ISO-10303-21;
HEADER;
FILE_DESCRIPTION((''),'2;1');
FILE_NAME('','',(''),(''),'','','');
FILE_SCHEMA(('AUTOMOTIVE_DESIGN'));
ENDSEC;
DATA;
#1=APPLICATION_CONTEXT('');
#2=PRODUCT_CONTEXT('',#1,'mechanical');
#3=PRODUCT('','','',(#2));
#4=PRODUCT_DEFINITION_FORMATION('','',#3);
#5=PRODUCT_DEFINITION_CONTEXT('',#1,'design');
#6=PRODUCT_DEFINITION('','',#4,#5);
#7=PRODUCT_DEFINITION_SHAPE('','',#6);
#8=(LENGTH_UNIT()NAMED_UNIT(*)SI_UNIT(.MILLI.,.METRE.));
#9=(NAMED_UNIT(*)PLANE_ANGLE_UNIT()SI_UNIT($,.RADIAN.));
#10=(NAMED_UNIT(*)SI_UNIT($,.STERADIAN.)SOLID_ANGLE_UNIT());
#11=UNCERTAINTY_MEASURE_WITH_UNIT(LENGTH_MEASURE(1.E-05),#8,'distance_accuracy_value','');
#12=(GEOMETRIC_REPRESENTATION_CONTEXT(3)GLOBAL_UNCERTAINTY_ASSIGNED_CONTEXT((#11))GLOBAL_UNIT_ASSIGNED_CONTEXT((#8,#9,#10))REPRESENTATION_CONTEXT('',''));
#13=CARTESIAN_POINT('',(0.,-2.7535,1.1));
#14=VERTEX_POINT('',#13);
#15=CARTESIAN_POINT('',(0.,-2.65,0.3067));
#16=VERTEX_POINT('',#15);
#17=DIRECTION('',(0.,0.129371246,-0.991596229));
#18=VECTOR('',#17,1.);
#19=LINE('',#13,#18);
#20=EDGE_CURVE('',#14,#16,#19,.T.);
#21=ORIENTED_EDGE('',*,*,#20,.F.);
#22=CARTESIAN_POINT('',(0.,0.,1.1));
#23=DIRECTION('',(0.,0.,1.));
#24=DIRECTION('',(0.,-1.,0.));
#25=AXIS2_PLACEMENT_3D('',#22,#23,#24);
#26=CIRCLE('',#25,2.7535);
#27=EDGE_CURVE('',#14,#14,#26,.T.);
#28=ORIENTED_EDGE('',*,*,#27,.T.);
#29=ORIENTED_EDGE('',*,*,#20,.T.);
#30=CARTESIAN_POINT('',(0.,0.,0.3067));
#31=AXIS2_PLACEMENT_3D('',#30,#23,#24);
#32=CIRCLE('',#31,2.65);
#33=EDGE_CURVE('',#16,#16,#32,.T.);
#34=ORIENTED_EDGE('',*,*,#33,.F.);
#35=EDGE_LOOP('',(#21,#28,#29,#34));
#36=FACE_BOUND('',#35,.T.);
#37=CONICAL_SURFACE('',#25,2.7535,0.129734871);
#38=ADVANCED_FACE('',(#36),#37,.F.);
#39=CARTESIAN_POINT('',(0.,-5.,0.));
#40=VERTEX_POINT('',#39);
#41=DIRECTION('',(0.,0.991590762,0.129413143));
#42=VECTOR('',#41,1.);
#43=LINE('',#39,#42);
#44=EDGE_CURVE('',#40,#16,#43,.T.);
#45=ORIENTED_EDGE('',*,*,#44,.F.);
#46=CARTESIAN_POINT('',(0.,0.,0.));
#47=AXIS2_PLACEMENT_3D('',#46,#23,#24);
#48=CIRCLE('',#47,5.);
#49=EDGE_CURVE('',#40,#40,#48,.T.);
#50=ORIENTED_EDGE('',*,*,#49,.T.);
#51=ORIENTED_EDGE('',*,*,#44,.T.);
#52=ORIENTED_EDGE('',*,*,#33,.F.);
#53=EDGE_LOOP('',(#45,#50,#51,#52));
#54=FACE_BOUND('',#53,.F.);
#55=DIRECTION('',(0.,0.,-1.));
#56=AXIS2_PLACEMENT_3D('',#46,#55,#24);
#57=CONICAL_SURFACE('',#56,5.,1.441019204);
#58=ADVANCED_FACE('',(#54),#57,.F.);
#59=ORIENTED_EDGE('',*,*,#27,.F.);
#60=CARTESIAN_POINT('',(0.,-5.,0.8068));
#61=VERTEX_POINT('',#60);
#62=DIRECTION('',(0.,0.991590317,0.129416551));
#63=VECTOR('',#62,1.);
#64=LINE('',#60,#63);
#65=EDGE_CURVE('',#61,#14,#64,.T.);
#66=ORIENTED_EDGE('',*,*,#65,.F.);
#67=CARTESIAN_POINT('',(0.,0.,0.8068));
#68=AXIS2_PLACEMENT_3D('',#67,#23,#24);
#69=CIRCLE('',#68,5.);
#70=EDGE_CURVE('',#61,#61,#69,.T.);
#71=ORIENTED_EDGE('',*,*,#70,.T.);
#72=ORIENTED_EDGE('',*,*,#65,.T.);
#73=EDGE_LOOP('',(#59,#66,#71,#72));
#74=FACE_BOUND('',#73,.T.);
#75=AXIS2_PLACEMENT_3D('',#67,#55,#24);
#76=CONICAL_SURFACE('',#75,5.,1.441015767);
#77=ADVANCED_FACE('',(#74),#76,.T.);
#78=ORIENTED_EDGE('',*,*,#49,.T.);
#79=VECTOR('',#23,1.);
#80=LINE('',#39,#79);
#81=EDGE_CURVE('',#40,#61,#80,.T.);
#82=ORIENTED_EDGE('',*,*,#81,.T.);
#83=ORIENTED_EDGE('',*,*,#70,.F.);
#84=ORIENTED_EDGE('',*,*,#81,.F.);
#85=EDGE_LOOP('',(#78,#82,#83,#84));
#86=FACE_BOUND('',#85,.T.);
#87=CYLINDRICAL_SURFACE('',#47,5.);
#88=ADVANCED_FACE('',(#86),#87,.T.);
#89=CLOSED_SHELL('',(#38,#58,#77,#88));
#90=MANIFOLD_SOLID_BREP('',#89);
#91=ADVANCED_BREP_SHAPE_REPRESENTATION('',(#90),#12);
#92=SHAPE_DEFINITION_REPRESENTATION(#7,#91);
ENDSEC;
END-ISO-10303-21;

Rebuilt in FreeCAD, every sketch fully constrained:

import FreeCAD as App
import Part
import Sketcher

V = App.Vector
Q = App.Units.Quantity


def add_polygon(sketch, points):
    """Adds a closed chain of lines whose ends are joined by coincident constraints."""
    first, n = sketch.GeometryCount, len(points)
    for a, b in zip(points, points[1:] + points[:1]):
        sketch.addGeometry(Part.LineSegment(App.Vector(*a, 0), App.Vector(*b, 0)), False)
    for i in range(n):
        sketch.addConstraint(Sketcher.Constraint("Coincident", first + i, 2, first + (i + 1) % n, 1))

doc = App.newDocument("Part")
body = doc.addObject("PartDesign::Body", "Body")

# Sketch on YZ plane
sketch1 = doc.addObject("Sketcher::SketchObject", "Sketch")
body.addObject(sketch1)
sketch1.AttachmentSupport = (doc.YZ_Plane, [""])
sketch1.MapMode = "FlatFace"
add_polygon(sketch1, [(-5, 0.8), (-5, 0), (-2.6, 0.3), (-2.8, 1.1)])  # lines 0-3
sketch1.addConstraint([
    Sketcher.Constraint("Vertical", 0),
    Sketcher.Constraint("PointOnObject", 0, 2, -1),
    Sketcher.Constraint("Perpendicular", 1, 2),
    Sketcher.Constraint("Perpendicular", 2, 3),
    Sketcher.Constraint("DistanceX", 0, 2, -1, 1, Q("5 mm")),
    Sketcher.Constraint("Distance", 2, Q("0.8 mm")),
    Sketcher.Constraint("DistanceY", -1, 1, 2, 2, Q("1.1 mm")),
    Sketcher.Constraint("DistanceX", 1, 2, -1, 1, Q("2.65 mm")),
])
revolution = doc.addObject("PartDesign::Revolution", "Revolution")
body.addObject(revolution)
revolution.Profile = sketch1
revolution.ReferenceAxis = (sketch1, ["V_Axis"])
revolution.Angle = 360

doc.recompute()
